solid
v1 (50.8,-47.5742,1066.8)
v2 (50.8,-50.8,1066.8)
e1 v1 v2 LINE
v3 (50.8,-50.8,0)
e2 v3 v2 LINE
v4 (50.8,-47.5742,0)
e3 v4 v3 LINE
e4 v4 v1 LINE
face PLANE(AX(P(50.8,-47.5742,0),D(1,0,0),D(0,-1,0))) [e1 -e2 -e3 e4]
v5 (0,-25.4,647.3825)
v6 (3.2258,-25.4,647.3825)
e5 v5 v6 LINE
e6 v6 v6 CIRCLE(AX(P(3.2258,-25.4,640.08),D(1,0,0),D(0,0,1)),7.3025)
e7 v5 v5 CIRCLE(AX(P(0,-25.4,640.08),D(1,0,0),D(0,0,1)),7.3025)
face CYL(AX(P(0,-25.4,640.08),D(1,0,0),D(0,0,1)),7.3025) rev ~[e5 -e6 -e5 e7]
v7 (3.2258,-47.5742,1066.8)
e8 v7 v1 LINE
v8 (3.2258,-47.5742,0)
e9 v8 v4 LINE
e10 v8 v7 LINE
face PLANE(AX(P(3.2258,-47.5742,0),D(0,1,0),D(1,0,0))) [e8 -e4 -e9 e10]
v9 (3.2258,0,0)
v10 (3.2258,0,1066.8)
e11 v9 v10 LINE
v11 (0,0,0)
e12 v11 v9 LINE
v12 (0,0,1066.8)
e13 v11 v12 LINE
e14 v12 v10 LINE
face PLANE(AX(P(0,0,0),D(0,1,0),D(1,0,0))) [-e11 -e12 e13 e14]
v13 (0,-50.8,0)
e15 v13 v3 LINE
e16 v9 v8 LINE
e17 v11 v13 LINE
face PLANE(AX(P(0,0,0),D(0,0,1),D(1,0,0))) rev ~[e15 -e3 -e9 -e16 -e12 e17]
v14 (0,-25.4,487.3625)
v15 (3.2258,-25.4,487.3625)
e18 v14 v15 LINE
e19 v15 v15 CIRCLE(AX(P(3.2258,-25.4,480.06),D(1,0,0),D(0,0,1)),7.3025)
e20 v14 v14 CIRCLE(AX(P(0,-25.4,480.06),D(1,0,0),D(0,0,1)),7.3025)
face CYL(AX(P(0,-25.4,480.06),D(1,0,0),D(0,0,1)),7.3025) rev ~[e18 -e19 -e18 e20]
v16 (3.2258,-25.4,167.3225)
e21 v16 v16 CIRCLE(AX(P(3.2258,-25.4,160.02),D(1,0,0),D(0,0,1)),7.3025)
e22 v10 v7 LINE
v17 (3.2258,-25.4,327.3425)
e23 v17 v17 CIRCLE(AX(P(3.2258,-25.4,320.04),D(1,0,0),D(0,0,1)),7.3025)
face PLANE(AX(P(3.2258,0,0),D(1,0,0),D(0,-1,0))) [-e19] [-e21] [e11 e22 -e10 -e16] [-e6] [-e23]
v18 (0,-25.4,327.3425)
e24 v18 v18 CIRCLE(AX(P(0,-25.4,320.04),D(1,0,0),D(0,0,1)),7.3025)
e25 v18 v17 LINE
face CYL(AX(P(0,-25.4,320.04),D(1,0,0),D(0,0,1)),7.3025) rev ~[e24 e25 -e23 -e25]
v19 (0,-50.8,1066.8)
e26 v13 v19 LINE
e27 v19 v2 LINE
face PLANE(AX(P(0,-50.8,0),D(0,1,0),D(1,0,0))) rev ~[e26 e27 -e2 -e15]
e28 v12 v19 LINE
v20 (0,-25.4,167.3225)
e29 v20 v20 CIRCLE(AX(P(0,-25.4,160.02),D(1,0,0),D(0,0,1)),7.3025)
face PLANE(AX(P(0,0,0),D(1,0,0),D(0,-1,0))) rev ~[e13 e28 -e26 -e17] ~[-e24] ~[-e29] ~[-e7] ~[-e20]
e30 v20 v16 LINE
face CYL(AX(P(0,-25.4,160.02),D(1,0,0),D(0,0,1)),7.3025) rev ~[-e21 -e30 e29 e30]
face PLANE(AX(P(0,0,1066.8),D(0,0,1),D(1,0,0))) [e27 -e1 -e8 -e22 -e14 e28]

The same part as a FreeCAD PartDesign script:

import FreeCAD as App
import Part
import Sketcher

V = App.Vector
Q = App.Units.Quantity

doc = App.newDocument("Part")
body = doc.addObject("PartDesign::Body", "Body")

sketch1 = body.newObject("Sketcher::SketchObject", "Sketch")
sketch1.AttachmentSupport = (doc.getObject("XY_Plane"), [""])
sketch1.MapMode = "FlatFace"
sketch1.addGeometry([
    Part.LineSegment(V(3.2, 0, 0), V(0, 0, 0)),
    Part.LineSegment(V(0, 0, 0), V(0, -50.8, 0)),
    Part.LineSegment(V(0, -50.8, 0), V(50.8, -50.8, 0)),
    Part.LineSegment(V(50.8, -50.8, 0), V(50.8, -47.6, 0)),
    Part.LineSegment(V(50.8, -47.6, 0), V(3.2, -47.6, 0)),
    Part.LineSegment(V(3.2, -47.6, 0), V(3.2, 0, 0)),
], False)
sketch1.addConstraint([
    Sketcher.Constraint("Coincident", 0, 2, 1, 1),
    Sketcher.Constraint("Coincident", 1, 2, 2, 1),
    Sketcher.Constraint("Coincident", 2, 2, 3, 1),
    Sketcher.Constraint("Coincident", 3, 2, 4, 1),
    Sketcher.Constraint("Coincident", 4, 2, 5, 1),
    Sketcher.Constraint("Coincident", 5, 2, 0, 1),
    Sketcher.Constraint("Horizontal", 0),
    Sketcher.Constraint("Vertical", 1),
    Sketcher.Constraint("Horizontal", 2),
    Sketcher.Constraint("Vertical", 3),
    Sketcher.Constraint("Horizontal", 4),
    Sketcher.Constraint("Vertical", 5),
    Sketcher.Constraint("Coincident", 0, 2, -1, 1),
    Sketcher.Constraint("Equal", 2, 1),
    Sketcher.Constraint("Equal", 0, 3),
    Sketcher.Constraint("DistanceX", 2, 1, 2, 2, Q("2 in")),
    Sketcher.Constraint("DistanceX", 0, 2, 0, 1, Q("0.127 in")),
])
pad1 = body.newObject("PartDesign::Pad", "Pad")
pad1.Profile = sketch1
pad1.Length = Q("42 in")

sketch2 = body.newObject("Sketcher::SketchObject", "Sketch001")
sketch2.AttachmentSupport = (doc.getObject("YZ_Plane"), [""])
sketch2.MapMode = "FlatFace"
sketch2.addGeometry([
    Part.Circle(V(-25, 480, 0), V(0, 0, 1), 7),
    Part.Circle(V(-25, 640, 0), V(0, 0, 1), 7),
    Part.Circle(V(-25, 320, 0), V(0, 0, 1), 7),
    Part.Circle(V(-25, 160, 0), V(0, 0, 1), 7),
], False)
sketch2.addConstraint([
    Sketcher.Constraint("Equal", 0, 1),
    Sketcher.Constraint("Equal", 1, 2),
    Sketcher.Constraint("Equal", 2, 3),
    Sketcher.Constraint("Vertical", 0, 3, 1, 3),
    Sketcher.Constraint("Vertical", 1, 3, 2, 3),
    Sketcher.Constraint("Vertical", 2, 3, 3, 3),
    Sketcher.Constraint("Diameter", 0, Q("0.575 in")),
    Sketcher.Constraint("DistanceX", 0, 3, -1, 1, Q("1 in")),
    Sketcher.Constraint("DistanceY", -1, 1, 0, 3, Q("18.9 in")),
    Sketcher.Constraint("DistanceY", -1, 1, 1, 3, Q("25.2 in")),
    Sketcher.Constraint("DistanceY", -1, 1, 2, 3, Q("12.6 in")),
    Sketcher.Constraint("DistanceY", -1, 1, 3, 3, Q("6.3 in")),
])
doc.recompute()
hole = body.newObject("PartDesign::Hole", "Hole")
hole.Profile = sketch2
hole.ThreadType = "None"
hole.Diameter = Q("0.575 in")
hole.DepthType = "ThroughAll"
hole.Reversed = True

doc.recompute()
